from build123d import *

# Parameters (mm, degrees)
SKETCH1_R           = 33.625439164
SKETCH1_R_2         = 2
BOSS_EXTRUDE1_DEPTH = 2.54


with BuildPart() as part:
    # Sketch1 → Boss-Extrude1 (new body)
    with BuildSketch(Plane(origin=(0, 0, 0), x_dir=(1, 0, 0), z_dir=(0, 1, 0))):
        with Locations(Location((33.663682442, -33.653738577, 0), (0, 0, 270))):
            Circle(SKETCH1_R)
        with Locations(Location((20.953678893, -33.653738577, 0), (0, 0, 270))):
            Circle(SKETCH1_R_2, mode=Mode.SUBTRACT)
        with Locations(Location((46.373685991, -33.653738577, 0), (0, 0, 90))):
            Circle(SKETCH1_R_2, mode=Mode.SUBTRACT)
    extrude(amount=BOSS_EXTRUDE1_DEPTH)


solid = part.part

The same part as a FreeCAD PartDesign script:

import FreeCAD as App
import Part
import Sketcher

doc = App.newDocument("Part")
body = doc.addObject("PartDesign::Body", "Body")

# Sketch on XZ plane
sketch1 = doc.addObject("Sketcher::SketchObject", "Sketch")
body.addObject(sketch1)
sketch1.AttachmentSupport = (doc.XZ_Plane, [""])
sketch1.MapMode = "FlatFace"
sketch1.addGeometry(Part.Circle(App.Vector(33.7, 33.7, 0), App.Vector(0, 0, 1), 33.6), False)
sketch1.addGeometry(Part.Circle(App.Vector(21, 33.7, 0), App.Vector(0, 0, 1), 2), False)
sketch1.addGeometry(Part.Circle(App.Vector(46.4, 33.7, 0), App.Vector(0, 0, 1), 2), False)
sketch1.addConstraint(Sketcher.Constraint("Equal", 1, 2))
sketch1.addConstraint(Sketcher.Constraint("Horizontal", 0, 3, 1, 3))
sketch1.addConstraint(Sketcher.Constraint("Horizontal", 1, 3, 2, 3))
sketch1.addConstraint(Sketcher.Constraint("Diameter", 1, 4.0))
sketch1.addConstraint(Sketcher.Constraint("Diameter", 0, 67.250878))
sketch1.addConstraint(Sketcher.Constraint("DistanceY", -1, 1, 0, 3, 33.653739))
sketch1.addConstraint(Sketcher.Constraint("DistanceX", -1, 1, 1, 3, 20.953679))
sketch1.addConstraint(Sketcher.Constraint("DistanceX", -1, 1, 0, 3, 33.663682))
sketch1.addConstraint(Sketcher.Constraint("DistanceX", -1, 1, 2, 3, 46.373686))
pad1 = doc.addObject("PartDesign::Pad", "Pad")
body.addObject(pad1)
pad1.Profile = sketch1
pad1.Length = 2.54
pad1.Reversed = True

doc.recompute()
